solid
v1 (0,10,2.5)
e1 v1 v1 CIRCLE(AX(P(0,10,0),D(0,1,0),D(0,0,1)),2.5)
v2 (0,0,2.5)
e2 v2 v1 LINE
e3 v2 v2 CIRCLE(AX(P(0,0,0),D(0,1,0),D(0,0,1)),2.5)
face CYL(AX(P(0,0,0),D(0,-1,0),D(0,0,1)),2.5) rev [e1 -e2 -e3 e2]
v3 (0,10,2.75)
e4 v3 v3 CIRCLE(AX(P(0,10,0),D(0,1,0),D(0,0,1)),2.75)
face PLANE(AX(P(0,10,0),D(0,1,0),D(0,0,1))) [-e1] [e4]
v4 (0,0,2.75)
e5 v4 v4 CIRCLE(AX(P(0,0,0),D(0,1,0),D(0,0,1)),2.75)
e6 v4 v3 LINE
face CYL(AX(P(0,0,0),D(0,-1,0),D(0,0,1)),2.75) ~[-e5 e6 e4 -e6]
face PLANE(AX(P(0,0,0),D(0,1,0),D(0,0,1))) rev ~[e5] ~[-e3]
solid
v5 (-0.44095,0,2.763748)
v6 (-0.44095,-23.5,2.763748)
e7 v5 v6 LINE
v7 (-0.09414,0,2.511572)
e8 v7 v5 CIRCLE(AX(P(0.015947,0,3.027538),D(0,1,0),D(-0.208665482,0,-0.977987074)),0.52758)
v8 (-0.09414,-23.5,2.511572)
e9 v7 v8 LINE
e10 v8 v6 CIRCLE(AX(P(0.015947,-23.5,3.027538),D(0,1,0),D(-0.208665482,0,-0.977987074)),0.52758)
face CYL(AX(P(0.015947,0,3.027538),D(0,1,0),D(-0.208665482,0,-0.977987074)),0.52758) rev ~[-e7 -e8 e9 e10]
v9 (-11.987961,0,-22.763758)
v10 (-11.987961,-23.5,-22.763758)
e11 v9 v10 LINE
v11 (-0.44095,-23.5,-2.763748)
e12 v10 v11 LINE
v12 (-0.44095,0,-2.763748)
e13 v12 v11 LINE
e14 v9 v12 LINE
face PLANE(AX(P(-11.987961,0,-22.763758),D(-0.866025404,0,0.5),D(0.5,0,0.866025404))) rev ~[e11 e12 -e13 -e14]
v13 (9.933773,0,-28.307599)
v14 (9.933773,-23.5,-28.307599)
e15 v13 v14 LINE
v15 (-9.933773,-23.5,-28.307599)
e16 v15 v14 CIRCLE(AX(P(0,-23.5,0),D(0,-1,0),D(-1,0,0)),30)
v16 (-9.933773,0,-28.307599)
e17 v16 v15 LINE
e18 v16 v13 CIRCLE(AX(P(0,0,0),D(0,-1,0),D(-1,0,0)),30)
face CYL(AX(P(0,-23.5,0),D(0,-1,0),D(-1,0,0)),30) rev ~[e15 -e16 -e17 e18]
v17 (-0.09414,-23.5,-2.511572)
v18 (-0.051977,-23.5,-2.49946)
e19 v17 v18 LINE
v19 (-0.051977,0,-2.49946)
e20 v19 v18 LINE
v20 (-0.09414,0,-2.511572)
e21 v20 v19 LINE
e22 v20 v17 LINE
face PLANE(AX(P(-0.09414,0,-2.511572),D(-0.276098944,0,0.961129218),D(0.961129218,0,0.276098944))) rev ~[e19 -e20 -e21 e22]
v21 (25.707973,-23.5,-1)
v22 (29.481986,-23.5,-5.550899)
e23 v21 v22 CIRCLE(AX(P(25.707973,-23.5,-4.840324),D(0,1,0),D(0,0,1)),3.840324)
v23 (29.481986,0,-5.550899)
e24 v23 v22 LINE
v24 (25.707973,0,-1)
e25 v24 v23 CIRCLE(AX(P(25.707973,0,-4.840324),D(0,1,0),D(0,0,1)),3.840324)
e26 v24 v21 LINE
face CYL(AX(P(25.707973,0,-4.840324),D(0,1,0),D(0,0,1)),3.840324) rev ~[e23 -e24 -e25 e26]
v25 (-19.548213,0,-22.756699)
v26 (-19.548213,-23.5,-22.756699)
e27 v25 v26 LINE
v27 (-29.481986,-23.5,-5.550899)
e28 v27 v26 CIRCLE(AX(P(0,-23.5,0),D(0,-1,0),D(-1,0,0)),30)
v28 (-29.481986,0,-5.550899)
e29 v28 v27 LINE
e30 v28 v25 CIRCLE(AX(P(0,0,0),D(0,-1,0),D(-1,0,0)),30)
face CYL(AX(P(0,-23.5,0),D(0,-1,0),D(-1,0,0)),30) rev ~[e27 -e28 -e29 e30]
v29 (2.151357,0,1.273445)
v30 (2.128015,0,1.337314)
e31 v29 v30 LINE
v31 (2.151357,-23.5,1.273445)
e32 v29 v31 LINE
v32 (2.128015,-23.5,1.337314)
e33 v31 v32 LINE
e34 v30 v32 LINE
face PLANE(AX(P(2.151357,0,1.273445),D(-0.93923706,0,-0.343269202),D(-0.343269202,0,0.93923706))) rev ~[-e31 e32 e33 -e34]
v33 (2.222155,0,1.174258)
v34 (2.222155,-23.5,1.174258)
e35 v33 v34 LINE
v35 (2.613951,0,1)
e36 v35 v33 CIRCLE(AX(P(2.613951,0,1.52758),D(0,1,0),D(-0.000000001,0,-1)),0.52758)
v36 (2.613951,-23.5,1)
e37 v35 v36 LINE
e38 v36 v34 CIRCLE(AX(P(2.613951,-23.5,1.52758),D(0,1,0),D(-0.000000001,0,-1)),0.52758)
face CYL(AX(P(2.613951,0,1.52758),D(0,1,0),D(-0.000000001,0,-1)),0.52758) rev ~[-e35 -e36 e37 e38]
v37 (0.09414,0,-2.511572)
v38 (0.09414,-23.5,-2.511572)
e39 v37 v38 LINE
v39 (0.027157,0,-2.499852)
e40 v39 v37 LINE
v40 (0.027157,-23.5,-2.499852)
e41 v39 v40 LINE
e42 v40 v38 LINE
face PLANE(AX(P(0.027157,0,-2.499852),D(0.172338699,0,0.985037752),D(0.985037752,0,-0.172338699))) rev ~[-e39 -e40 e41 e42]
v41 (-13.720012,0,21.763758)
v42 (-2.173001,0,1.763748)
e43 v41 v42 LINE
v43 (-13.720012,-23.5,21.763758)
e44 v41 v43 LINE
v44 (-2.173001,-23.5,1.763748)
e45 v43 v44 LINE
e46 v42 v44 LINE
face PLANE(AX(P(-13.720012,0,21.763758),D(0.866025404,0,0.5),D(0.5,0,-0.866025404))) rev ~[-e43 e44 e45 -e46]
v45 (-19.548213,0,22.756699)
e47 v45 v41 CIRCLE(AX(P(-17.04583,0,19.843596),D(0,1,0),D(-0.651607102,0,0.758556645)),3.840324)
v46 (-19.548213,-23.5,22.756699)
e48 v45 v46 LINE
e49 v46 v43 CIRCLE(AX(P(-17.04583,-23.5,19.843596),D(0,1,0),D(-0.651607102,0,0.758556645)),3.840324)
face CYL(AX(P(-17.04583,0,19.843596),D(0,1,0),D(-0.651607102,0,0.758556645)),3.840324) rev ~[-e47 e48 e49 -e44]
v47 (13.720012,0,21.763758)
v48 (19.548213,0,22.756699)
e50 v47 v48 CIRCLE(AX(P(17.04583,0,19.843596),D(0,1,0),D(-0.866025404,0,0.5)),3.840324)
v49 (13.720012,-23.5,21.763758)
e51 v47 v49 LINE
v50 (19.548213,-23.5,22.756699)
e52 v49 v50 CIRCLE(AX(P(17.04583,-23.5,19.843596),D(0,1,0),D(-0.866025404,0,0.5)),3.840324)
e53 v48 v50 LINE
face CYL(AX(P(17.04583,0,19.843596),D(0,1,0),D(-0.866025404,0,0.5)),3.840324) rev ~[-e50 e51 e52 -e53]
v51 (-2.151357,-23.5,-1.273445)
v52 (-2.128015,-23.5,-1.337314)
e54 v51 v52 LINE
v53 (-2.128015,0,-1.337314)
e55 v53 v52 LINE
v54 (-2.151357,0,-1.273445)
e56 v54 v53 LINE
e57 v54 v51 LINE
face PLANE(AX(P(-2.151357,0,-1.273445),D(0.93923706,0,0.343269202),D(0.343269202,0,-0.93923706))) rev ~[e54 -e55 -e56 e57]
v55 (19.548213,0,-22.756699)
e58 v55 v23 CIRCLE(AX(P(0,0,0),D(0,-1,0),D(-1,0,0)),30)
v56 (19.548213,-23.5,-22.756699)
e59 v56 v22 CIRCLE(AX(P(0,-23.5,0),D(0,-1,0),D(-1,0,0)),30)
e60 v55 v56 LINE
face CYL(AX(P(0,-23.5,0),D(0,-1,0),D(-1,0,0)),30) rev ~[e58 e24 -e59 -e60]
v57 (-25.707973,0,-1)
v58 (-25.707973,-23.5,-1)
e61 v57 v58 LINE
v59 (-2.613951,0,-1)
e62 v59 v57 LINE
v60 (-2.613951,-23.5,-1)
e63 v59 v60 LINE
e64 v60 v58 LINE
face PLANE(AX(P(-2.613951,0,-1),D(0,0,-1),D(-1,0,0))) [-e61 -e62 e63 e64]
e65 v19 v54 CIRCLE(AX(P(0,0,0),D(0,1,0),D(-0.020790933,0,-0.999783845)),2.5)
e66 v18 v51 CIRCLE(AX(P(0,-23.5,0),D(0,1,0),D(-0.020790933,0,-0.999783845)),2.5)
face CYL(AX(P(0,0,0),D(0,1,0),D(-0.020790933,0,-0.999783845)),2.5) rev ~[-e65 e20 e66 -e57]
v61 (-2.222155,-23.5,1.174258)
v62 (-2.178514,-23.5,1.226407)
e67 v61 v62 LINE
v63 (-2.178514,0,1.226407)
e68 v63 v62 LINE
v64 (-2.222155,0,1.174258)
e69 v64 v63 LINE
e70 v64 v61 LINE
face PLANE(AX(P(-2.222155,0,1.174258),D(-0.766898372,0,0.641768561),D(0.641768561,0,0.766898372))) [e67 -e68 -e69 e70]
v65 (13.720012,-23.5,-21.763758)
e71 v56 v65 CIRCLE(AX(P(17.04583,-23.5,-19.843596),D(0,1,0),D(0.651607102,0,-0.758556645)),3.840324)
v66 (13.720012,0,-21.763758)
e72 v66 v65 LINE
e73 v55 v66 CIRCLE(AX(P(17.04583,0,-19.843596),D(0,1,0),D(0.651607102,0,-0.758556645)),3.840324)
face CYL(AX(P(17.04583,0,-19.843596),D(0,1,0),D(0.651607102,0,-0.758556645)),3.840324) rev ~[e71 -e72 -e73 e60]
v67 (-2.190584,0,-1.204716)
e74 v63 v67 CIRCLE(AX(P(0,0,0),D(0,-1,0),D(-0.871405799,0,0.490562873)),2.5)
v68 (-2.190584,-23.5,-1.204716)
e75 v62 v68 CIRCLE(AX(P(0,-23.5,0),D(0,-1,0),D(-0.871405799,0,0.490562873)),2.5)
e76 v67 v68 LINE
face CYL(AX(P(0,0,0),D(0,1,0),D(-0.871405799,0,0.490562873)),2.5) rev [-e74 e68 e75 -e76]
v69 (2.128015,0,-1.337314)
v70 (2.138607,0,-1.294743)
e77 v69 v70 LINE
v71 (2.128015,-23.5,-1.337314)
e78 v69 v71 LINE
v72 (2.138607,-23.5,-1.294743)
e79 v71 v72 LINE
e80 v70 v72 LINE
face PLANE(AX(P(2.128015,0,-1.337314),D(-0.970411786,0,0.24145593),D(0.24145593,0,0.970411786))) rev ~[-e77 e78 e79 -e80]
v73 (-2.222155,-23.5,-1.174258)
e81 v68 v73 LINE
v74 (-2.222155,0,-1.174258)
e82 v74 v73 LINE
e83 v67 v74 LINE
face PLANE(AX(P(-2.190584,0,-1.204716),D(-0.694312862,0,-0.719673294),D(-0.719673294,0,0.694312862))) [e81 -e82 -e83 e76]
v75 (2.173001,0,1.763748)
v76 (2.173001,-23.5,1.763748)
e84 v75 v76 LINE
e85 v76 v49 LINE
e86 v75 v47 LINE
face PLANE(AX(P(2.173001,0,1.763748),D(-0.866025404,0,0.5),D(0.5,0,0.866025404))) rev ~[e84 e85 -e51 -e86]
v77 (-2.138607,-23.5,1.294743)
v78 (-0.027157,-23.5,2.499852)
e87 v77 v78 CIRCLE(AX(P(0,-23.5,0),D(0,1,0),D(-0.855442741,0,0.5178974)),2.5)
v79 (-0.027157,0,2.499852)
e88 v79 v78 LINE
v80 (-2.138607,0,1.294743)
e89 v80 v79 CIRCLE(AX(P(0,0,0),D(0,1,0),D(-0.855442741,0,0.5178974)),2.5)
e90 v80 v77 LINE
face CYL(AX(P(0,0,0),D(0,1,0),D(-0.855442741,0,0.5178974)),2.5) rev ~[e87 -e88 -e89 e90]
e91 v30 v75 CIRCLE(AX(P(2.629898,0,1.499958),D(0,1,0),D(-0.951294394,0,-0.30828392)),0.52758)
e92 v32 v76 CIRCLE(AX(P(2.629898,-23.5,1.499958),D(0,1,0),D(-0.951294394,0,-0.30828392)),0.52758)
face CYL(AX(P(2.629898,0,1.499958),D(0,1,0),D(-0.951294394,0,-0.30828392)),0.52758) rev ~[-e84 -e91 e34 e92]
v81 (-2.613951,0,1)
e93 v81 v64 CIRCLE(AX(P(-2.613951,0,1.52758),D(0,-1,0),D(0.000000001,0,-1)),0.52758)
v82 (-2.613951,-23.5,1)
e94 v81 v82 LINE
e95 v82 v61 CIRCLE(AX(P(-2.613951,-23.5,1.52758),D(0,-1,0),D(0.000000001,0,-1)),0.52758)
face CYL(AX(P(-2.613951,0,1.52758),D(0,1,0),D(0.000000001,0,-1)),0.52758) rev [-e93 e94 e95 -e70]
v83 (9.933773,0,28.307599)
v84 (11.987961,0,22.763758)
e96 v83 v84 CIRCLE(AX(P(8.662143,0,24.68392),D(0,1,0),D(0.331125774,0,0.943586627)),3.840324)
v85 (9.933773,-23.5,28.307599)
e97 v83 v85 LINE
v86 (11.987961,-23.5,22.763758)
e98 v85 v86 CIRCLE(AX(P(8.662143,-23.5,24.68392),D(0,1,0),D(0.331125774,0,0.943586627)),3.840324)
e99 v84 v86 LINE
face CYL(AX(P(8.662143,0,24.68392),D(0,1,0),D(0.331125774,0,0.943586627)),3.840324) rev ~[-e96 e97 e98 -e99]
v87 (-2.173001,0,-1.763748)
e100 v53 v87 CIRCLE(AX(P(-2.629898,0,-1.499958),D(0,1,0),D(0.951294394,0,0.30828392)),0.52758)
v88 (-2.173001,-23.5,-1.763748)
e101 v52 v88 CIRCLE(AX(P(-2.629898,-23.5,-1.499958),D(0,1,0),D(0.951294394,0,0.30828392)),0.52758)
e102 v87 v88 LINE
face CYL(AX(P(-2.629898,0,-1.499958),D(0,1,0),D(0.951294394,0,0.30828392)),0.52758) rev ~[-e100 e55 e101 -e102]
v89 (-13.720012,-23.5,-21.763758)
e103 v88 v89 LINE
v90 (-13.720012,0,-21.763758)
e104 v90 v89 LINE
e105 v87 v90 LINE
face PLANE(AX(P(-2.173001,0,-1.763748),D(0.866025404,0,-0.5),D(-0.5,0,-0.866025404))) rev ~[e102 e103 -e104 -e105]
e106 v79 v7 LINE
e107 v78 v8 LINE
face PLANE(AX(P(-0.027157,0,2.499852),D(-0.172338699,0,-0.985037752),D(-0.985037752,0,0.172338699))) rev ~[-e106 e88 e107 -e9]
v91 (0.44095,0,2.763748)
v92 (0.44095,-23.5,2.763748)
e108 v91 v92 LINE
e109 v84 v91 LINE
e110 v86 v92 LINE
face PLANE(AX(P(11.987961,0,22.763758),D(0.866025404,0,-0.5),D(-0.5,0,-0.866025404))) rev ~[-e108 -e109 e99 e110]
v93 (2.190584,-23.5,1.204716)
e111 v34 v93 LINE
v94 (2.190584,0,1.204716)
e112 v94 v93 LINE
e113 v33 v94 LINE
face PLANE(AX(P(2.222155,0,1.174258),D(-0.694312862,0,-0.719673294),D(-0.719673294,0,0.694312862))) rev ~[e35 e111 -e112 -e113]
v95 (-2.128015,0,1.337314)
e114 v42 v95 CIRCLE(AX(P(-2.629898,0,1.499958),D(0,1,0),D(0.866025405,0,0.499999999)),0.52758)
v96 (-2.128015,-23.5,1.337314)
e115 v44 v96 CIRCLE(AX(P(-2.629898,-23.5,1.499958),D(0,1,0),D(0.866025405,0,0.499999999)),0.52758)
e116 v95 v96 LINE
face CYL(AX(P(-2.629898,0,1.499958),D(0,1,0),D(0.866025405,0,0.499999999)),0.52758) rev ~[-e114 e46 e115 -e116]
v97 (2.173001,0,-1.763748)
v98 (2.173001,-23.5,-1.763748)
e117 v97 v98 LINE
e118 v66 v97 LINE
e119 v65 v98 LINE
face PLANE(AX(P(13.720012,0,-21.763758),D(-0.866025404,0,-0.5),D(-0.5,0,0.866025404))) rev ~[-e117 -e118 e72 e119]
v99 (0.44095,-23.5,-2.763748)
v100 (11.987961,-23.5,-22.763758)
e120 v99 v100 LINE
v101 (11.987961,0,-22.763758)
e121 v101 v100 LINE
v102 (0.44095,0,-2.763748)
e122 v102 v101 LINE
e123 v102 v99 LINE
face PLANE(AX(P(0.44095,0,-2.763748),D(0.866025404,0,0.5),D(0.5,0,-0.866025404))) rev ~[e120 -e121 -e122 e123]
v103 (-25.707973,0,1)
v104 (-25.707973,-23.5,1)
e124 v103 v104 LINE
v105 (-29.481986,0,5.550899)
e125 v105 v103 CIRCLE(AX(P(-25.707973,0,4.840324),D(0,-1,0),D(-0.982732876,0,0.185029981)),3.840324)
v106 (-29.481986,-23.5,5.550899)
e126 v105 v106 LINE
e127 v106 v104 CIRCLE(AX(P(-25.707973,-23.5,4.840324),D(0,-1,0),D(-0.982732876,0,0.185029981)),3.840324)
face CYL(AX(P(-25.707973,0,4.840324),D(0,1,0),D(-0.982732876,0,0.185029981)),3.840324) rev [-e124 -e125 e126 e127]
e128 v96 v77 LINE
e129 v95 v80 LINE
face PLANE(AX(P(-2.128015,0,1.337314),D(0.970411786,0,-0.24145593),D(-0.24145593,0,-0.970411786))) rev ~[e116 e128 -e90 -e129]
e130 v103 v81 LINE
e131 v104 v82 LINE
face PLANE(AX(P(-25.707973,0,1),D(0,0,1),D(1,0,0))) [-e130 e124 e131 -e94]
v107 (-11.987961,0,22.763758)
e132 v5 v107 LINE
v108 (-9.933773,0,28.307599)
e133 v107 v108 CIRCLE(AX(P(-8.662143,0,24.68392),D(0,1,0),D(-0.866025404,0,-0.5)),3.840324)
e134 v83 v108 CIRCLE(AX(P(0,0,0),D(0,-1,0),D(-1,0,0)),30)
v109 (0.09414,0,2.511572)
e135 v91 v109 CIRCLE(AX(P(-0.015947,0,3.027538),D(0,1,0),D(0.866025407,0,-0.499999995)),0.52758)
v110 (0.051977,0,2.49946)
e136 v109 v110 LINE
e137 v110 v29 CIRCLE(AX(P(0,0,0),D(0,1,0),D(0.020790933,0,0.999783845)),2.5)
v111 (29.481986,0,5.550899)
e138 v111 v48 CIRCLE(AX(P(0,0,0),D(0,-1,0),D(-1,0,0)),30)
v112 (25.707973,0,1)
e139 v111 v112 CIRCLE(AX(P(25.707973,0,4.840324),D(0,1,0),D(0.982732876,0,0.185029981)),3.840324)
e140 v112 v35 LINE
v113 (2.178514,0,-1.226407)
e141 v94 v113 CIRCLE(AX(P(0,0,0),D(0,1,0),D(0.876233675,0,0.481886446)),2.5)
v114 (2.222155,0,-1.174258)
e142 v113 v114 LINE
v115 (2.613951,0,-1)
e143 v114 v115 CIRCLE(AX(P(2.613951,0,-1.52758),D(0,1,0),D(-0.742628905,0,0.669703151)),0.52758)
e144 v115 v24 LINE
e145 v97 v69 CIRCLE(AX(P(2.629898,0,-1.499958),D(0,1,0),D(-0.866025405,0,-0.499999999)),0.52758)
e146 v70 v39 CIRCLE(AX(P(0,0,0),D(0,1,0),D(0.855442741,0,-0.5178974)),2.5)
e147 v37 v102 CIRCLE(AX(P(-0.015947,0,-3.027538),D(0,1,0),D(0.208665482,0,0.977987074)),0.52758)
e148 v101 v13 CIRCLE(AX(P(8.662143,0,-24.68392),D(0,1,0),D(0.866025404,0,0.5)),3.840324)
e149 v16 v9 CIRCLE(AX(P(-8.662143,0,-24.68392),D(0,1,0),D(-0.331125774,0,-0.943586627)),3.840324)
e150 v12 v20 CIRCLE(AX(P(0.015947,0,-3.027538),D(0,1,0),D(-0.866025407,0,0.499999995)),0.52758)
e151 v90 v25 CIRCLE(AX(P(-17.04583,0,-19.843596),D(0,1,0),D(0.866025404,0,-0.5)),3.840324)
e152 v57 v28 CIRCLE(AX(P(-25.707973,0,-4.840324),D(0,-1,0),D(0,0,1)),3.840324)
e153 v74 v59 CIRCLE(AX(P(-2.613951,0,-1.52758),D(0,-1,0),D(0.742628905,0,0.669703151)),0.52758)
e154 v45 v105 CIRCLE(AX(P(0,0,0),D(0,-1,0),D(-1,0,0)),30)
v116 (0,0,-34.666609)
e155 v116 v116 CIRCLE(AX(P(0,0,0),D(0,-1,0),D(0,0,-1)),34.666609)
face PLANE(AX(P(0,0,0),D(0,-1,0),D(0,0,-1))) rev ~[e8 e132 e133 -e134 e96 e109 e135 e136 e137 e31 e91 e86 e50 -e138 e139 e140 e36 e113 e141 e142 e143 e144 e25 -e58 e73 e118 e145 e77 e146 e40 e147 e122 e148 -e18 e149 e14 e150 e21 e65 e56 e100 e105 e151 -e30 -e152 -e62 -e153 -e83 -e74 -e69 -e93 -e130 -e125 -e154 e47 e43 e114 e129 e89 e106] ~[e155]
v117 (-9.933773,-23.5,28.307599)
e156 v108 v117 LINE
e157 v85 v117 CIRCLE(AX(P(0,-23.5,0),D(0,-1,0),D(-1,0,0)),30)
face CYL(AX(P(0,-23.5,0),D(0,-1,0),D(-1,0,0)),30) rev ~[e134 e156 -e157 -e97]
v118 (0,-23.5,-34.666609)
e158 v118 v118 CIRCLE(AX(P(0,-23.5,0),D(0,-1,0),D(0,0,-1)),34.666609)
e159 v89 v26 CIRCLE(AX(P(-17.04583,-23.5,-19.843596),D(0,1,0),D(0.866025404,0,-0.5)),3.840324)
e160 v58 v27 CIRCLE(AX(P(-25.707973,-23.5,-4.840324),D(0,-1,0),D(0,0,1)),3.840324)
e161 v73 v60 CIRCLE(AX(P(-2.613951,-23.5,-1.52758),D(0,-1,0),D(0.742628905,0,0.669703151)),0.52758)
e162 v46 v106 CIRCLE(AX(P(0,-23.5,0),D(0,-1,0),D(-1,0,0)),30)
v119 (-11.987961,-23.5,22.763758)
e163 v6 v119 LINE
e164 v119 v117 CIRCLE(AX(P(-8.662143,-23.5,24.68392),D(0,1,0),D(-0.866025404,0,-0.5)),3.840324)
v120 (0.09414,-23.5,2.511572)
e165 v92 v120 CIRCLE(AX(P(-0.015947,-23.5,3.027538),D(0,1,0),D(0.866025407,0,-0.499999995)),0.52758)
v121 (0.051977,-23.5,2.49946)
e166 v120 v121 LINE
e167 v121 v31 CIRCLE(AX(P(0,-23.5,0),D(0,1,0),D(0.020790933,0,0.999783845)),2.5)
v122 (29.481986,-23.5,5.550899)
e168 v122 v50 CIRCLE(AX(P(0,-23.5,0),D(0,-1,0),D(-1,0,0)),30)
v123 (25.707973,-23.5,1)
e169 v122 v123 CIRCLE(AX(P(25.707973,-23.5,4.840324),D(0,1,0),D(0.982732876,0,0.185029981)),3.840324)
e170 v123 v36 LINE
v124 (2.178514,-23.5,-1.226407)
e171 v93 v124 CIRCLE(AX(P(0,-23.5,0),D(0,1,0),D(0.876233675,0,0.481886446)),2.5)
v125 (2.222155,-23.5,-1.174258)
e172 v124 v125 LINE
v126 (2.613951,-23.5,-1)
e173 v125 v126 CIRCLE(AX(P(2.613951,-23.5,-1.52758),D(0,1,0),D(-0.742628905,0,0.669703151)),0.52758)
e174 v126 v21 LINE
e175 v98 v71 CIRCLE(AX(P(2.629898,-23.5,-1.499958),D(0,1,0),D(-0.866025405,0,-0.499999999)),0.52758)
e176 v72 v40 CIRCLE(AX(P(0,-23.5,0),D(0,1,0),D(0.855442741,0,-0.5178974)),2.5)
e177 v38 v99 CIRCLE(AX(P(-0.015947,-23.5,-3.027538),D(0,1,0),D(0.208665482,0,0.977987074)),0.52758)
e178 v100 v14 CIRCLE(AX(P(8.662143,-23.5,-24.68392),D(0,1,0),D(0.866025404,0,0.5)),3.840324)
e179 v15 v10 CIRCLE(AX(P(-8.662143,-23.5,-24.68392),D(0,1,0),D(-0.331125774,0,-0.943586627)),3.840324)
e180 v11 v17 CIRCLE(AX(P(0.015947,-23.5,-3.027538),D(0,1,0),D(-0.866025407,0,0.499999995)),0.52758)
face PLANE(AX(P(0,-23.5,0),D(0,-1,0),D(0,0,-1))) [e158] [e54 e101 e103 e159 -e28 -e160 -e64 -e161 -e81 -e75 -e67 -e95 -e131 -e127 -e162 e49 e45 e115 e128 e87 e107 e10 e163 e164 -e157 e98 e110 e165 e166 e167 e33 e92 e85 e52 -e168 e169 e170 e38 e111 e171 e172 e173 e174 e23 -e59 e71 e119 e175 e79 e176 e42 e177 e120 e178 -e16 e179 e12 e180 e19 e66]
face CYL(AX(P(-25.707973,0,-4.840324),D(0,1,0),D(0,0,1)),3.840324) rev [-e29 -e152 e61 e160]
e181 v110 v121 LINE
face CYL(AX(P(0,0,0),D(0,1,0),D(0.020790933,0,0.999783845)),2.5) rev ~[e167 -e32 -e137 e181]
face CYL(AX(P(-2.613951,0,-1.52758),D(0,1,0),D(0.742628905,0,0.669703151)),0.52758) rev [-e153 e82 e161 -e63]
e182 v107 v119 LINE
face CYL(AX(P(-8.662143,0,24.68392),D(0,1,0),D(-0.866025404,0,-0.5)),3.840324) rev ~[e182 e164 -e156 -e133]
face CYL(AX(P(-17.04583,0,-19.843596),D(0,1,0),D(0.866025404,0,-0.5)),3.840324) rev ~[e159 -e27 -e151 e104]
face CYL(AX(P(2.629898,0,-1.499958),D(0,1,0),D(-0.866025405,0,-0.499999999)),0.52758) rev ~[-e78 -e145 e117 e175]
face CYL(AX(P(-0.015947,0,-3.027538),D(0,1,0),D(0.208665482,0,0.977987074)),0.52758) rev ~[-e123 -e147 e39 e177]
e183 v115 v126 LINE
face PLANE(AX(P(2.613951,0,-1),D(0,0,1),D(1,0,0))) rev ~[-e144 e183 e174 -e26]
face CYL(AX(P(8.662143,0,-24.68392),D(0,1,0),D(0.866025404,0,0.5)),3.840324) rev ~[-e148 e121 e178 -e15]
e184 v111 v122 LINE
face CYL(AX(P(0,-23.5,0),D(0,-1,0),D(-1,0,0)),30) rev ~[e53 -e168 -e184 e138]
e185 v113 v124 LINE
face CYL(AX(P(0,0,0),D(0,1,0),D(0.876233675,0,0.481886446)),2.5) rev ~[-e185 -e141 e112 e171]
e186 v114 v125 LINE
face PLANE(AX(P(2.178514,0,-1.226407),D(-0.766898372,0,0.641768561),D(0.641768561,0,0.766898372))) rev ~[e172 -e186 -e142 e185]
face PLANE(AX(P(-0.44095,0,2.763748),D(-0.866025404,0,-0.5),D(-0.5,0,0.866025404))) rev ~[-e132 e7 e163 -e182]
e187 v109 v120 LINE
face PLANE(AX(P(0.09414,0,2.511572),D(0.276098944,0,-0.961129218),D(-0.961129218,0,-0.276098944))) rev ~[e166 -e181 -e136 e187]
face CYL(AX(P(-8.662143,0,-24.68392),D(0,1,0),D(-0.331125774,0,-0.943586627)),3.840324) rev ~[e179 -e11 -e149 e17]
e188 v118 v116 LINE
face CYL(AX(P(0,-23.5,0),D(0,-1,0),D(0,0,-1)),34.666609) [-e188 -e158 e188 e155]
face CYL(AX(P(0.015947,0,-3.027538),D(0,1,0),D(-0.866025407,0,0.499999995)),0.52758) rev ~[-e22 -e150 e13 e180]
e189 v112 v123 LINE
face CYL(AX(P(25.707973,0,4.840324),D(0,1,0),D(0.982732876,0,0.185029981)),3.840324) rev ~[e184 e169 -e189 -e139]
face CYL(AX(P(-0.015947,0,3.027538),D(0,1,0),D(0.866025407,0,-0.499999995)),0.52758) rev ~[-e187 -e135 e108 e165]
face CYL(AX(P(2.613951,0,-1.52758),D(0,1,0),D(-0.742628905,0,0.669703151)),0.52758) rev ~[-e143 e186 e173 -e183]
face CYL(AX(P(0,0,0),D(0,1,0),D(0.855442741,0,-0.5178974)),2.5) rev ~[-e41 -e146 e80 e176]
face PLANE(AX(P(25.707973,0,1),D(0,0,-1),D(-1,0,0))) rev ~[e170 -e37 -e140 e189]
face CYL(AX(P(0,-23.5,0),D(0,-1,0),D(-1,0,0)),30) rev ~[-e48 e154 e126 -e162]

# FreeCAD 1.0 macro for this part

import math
import FreeCAD as App
import Part
import Sketcher
from FreeCAD import Vector
Q = App.Units.Quantity

doc = App.newDocument("Part")
body = doc.addObject("PartDesign::Body", "Body")

sketch1 = body.newObject("Sketcher::SketchObject", "Sketch")
sketch1.AttachmentSupport = (doc.getObject("XZ_Plane"), [""])
sketch1.MapMode = "FlatFace"
sketch1.addGeometry([
    Part.Circle(Vector(0, 0, 0), Vector(0, 0, 1), 2.8),
    Part.Circle(Vector(0, 0, 0), Vector(0, 0, 1), 2.5),
], False)
sketch1.addConstraint([
    Sketcher.Constraint("Coincident", 0, 3, -1, 1),
    Sketcher.Constraint("Coincident", 1, 3, -1, 1),
    Sketcher.Constraint("Diameter", 1, Q("5 mm")),
    Sketcher.Constraint("Diameter", 0, Q("5.5 mm")),
])
pad1 = body.newObject("PartDesign::Pad", "Pad")
pad1.Profile = sketch1
pad1.Length = 10
pad1.Reversed = True
body2 = doc.addObject("PartDesign::Body", "Body001")

sketch2 = body2.newObject("Sketcher::SketchObject", "Sketch001")
sketch2.AttachmentSupport = (doc.getObject("XZ_Plane001"), [""])
sketch2.MapMode = "FlatFace"
sketch2.addGeometry([
    Part.LineSegment(Vector(-25.708, -1, 0), Vector(-2.614, -1, 0)),
    Part.ArcOfCircle(Part.Circle(Vector(-2.614, -1.528, 0), Vector(0, 0, 1), 0.528), math.radians(42), math.radians(90)),
    Part.LineSegment(Vector(-2.222, -1.174, 0), Vector(-2.191, -1.205, 0)),
    Part.ArcOfCircle(Part.Circle(Vector(0, 0, 0), Vector(0, 0, 1), 2.5), math.radians(151), math.radians(209)),
    Part.LineSegment(Vector(-2.179, 1.226, 0), Vector(-2.222, 1.174, 0)),
    Part.ArcOfCircle(Part.Circle(Vector(-2.614, 1.528, 0), Vector(0, 0, 1), 0.528), math.radians(-90), math.radians(-42)),
    Part.LineSegment(Vector(-2.614, 1, 0), Vector(-25.708, 1, 0)),
    Part.ArcOfCircle(Part.Circle(Vector(-25.708, 4.84, 0), Vector(0, 0, 1), 3.84), math.radians(169), math.radians(270)),
    Part.ArcOfCircle(Part.Circle(Vector(0, 0, 0), Vector(0, 0, 1), 30), math.radians(169), math.radians(191)),
    Part.ArcOfCircle(Part.Circle(Vector(-25.708, -4.84, 0), Vector(0, 0, 1), 3.84), math.radians(90), math.radians(191)),
], False)
sketch2.addConstraint([
    Sketcher.Constraint("Tangent", 0, 2, 1, 2),
    Sketcher.Constraint("Coincident", 1, 1, 2, 1),
    Sketcher.Constraint("Coincident", 2, 2, 3, 2),
    Sketcher.Constraint("Coincident", 3, 1, 4, 1),
    Sketcher.Constraint("Coincident", 4, 2, 5, 2),
    Sketcher.Constraint("Tangent", 5, 1, 6, 1),
    Sketcher.Constraint("Tangent", 6, 2, 7, 2),
    Sketcher.Constraint("Tangent", 7, 1, 8, 1),
    Sketcher.Constraint("Tangent", 8, 2, 9, 2),
    Sketcher.Constraint("Tangent", 9, 1, 0, 1),
    Sketcher.Constraint("Horizontal", 0),
    Sketcher.Constraint("Horizontal", 6),
    Sketcher.Constraint("Coincident", 3, 3, -1, 1),
    Sketcher.Constraint("Coincident", 8, 3, -1, 1),
    Sketcher.Constraint("Equal", 1, 5),
    Sketcher.Constraint("Equal", 7, 9),
    Sketcher.Constraint("Symmetric", 1, 3, 5, 3, -1),
    Sketcher.Constraint("Vertical", 1, 1, 4, 2),
    Sketcher.Constraint("Radius", 8, Q("30 mm")),
    Sketcher.Constraint("Radius", 3, Q("2.5 mm")),
    Sketcher.Constraint("DistanceY", 0, 2, -1, 1, Q("1 mm")),
    Sketcher.Constraint("Radius", 1, Q("0.52758 mm")),
    Sketcher.Constraint("Distance", 4, Q("0.068 mm")),
    Sketcher.Constraint("Radius", 7, Q("3.840324 mm")),
    Sketcher.Constraint("Distance", 2, Q("0.043868 mm")),
    Sketcher.Constraint("DistanceX", 0, 1, 0, 2, Q("23.094023 mm")),
    Sketcher.Constraint("DistanceY", 1, 3, 1, 1, Q("0.353322 mm")),
])
pad2 = body2.newObject("PartDesign::Pad", "Pad001")
pad2.Profile = sketch2
pad2.Length = 23.5
body3 = doc.addObject("PartDesign::Body", "Body002")

sketch3 = body3.newObject("Sketcher::SketchObject", "Sketch002")
sketch3.AttachmentSupport = (doc.getObject("XZ_Plane002"), [""])
sketch3.MapMode = "FlatFace"
sketch3.addGeometry([
    Part.LineSegment(Vector(-0.441, 2.764, 0), Vector(-11.988, 22.764, 0)),
    Part.ArcOfCircle(Part.Circle(Vector(-8.662, 24.684, 0), Vector(0, 0, 1), 3.84), math.radians(109), math.radians(210)),
    Part.ArcOfCircle(Part.Circle(Vector(0, 0, 0), Vector(0, 0, 1), 30), math.radians(109), math.radians(131)),
    Part.ArcOfCircle(Part.Circle(Vector(-17.046, 19.844, 0), Vector(0, 0, 1), 3.84), math.radians(30), math.radians(131)),
    Part.LineSegment(Vector(-13.72, 21.764, 0), Vector(-2.173, 1.764, 0)),
    Part.ArcOfCircle(Part.Circle(Vector(-2.63, 1.5, 0), Vector(0, 0, 1), 0.528), math.radians(-18), math.radians(30)),
    Part.LineSegment(Vector(-2.128, 1.337, 0), Vector(-2.139, 1.295, 0)),
    Part.ArcOfCircle(Part.Circle(Vector(0, 0, 0), Vector(0, 0, 1), 2.5), math.radians(91), math.radians(149)),
    Part.LineSegment(Vector(-0.027, 2.5, 0), Vector(-0.094, 2.512, 0)),
    Part.ArcOfCircle(Part.Circle(Vector(0.016, 3.028, 0), Vector(0, 0, 1), 0.528), math.radians(-150), math.radians(-102)),
], False)
sketch3.addConstraint([
    Sketcher.Constraint("Tangent", 0, 2, 1, 2),
    Sketcher.Constraint("Tangent", 1, 1, 2, 1),
    Sketcher.Constraint("Tangent", 2, 2, 3, 2),
    Sketcher.Constraint("Tangent", 3, 1, 4, 1),
    Sketcher.Constraint("Tangent", 4, 2, 5, 2),
    Sketcher.Constraint("Coincident", 5, 1, 6, 1),
    Sketcher.Constraint("Coincident", 6, 2, 7, 2),
    Sketcher.Constraint("Coincident", 7, 1, 8, 1),
    Sketcher.Constraint("Coincident", 8, 2, 9, 2),
    Sketcher.Constraint("Tangent", 9, 1, 0, 1),
    Sketcher.Constraint("Coincident", 2, 3, -1, 1),
    Sketcher.Constraint("Coincident", 7, 3, -1, 1),
    Sketcher.Constraint("Equal", 1, 3),
    Sketcher.Constraint("Equal", 5, 9),
    Sketcher.Constraint("Parallel", 0, 4),
    Sketcher.Constraint("Equal", 0, 4),
    Sketcher.Constraint("Radius", 2, Q("30 mm")),
    Sketcher.Constraint("Radius", 7, Q("2.5 mm")),
    Sketcher.Constraint("Angle", 0, Q("120 deg")),
    Sketcher.Constraint("DistanceY", 3, 1, 0, 2, Q("1 mm")),
    Sketcher.Constraint("Radius", 5, Q("0.52758 mm")),
    Sketcher.Constraint("Distance", 8, Q("0.068 mm")),
    Sketcher.Constraint("DistanceX", 4, 2, -1, 1, Q("2.173001 mm")),
    Sketcher.Constraint("Radius", 1, Q("3.840324 mm")),
    Sketcher.Constraint("DistanceY", -1, 1, 1, 1, Q("28.307599 mm")),
    Sketcher.Constraint("Distance", 6, Q("0.043868 mm")),
    Sketcher.Constraint("DistanceX", 8, 2, -1, 1, Q("0.09414 mm")),
    Sketcher.Constraint("DistanceX", 5, 1, 9, 3, Q("2.143962 mm")),
])
pad3 = body3.newObject("PartDesign::Pad", "Pad002")
pad3.Profile = sketch3
pad3.Length = 23.5
body4 = doc.addObject("PartDesign::Body", "Body003")

sketch4 = body4.newObject("Sketcher::SketchObject", "Sketch003")
sketch4.AttachmentSupport = (doc.getObject("XZ_Plane003"), [""])
sketch4.MapMode = "FlatFace"
sketch4.addGeometry([
    Part.LineSegment(Vector(2.173, 1.764, 0), Vector(13.72, 21.764, 0)),
    Part.ArcOfCircle(Part.Circle(Vector(17.046, 19.844, 0), Vector(0, 0, 1), 3.84), math.radians(49), math.radians(150)),
    Part.ArcOfCircle(Part.Circle(Vector(0, 0, 0), Vector(0, 0, 1), 30), math.radians(49), math.radians(71)),
    Part.ArcOfCircle(Part.Circle(Vector(8.662, 24.684, 0), Vector(0, 0, 1), 3.84), math.radians(-30), math.radians(71)),
    Part.LineSegment(Vector(11.988, 22.764, 0), Vector(0.441, 2.764, 0)),
    Part.ArcOfCircle(Part.Circle(Vector(-0.016, 3.028, 0), Vector(0, 0, 1), 0.528), math.radians(-78), math.radians(-30)),
    Part.LineSegment(Vector(0.094, 2.512, 0), Vector(0.052, 2.499, 0)),
    Part.ArcOfCircle(Part.Circle(Vector(0, 0, 0), Vector(0, 0, 1), 2.5), math.radians(31), math.radians(89)),
    Part.LineSegment(Vector(2.151, 1.273, 0), Vector(2.128, 1.337, 0)),
    Part.ArcOfCircle(Part.Circle(Vector(2.63, 1.5, 0), Vector(0, 0, 1), 0.528), math.radians(150), math.radians(198)),
], False)
sketch4.addConstraint([
    Sketcher.Constraint("Tangent", 0, 2, 1, 2),
    Sketcher.Constraint("Tangent", 1, 1, 2, 1),
    Sketcher.Constraint("Tangent", 2, 2, 3, 2),
    Sketcher.Constraint("Tangent", 3, 1, 4, 1),
    Sketcher.Constraint("Tangent", 4, 2, 5, 2),
    Sketcher.Constraint("Coincident", 5, 1, 6, 1),
    Sketcher.Constraint("Coincident", 6, 2, 7, 2),
    Sketcher.Constraint("Coincident", 7, 1, 8, 1),
    Sketcher.Constraint("Coincident", 8, 2, 9, 2),
    Sketcher.Constraint("Tangent", 9, 1, 0, 1),
    Sketcher.Constraint("Coincident", 2, 3, -1, 1),
    Sketcher.Constraint("Coincident", 7, 3, -1, 1),
    Sketcher.Constraint("Equal", 1, 3),
    Sketcher.Constraint("Equal", 5, 9),
    Sketcher.Constraint("Parallel", 0, 4),
    Sketcher.Constraint("Equal", 0, 4),
    Sketcher.Constraint("Radius", 2, Q("30 mm")),
    Sketcher.Constraint("Radius", 7, Q("2.5 mm")),
    Sketcher.Constraint("Angle", 0, Q("60 deg")),
    Sketcher.Constraint("DistanceY", 0, 2, 3, 1, Q("1 mm")),
    Sketcher.Constraint("Radius", 5, Q("0.52758 mm")),
    Sketcher.Constraint("Distance", 8, Q("0.068 mm")),
    Sketcher.Constraint("DistanceX", -1, 1, 9, 1, Q("2.173001 mm")),
    Sketcher.Constraint("Radius", 1, Q("3.840324 mm")),
    Sketcher.Constraint("DistanceY", -1, 1, 1, 1, Q("22.756699 mm")),
    Sketcher.Constraint("Distance", 6, Q("0.043868 mm")),
    Sketcher.Constraint("DistanceX", -1, 1, 5, 1, Q("0.09414 mm")),
    Sketcher.Constraint("DistanceX", 7, 1, 9, 3, Q("0.478541 mm")),
])
pad4 = body4.newObject("PartDesign::Pad", "Pad003")
pad4.Profile = sketch4
pad4.Length = 23.5
body5 = doc.addObject("PartDesign::Body", "Body004")

sketch5 = body5.newObject("Sketcher::SketchObject", "Sketch004")
sketch5.AttachmentSupport = (doc.getObject("XZ_Plane004"), [""])
sketch5.MapMode = "FlatFace"
sketch5.addGeometry([
    Part.LineSegment(Vector(2.614, -1, 0), Vector(25.708, -1, 0)),
    Part.ArcOfCircle(Part.Circle(Vector(25.708, -4.84, 0), Vector(0, 0, 1), 3.84), math.radians(-11), math.radians(90)),
    Part.ArcOfCircle(Part.Circle(Vector(0, 0, 0), Vector(0, 0, 1), 30), math.radians(-11), math.radians(11)),
    Part.ArcOfCircle(Part.Circle(Vector(25.708, 4.84, 0), Vector(0, 0, 1), 3.84), math.radians(-90), math.radians(11)),
    Part.LineSegment(Vector(25.708, 1, 0), Vector(2.614, 1, 0)),
    Part.ArcOfCircle(Part.Circle(Vector(2.614, 1.528, 0), Vector(0, 0, 1), 0.528), math.radians(-138), math.radians(-90)),
    Part.LineSegment(Vector(2.222, 1.174, 0), Vector(2.191, 1.205, 0)),
    Part.ArcOfCircle(Part.Circle(Vector(0, 0, 0), Vector(0, 0, 1), 2.5), math.radians(-29), math.radians(29)),
    Part.LineSegment(Vector(2.179, -1.226, 0), Vector(2.222, -1.174, 0)),
    Part.ArcOfCircle(Part.Circle(Vector(2.614, -1.528, 0), Vector(0, 0, 1), 0.528), math.radians(90), math.radians(138)),
], False)
sketch5.addConstraint([
    Sketcher.Constraint("Tangent", 0, 2, 1, 2),
    Sketcher.Constraint("Tangent", 1, 1, 2, 1),
    Sketcher.Constraint("Tangent", 2, 2, 3, 2),
    Sketcher.Constraint("Tangent", 3, 1, 4, 1),
    Sketcher.Constraint("Tangent", 4, 2, 5, 2),
    Sketcher.Constraint("Coincident", 5, 1, 6, 1),
    Sketcher.Constraint("Coincident", 6, 2, 7, 2),
    Sketcher.Constraint("Coincident", 7, 1, 8, 1),
    Sketcher.Constraint("Coincident", 8, 2, 9, 2),
    Sketcher.Constraint("Tangent", 9, 1, 0, 1),
    Sketcher.Constraint("Horizontal", 0),
    Sketcher.Constraint("Horizontal", 4),
    Sketcher.Constraint("Coincident", 2, 3, -1, 1),
    Sketcher.Constraint("Coincident", 7, 3, -1, 1),
    Sketcher.Constraint("Equal", 1, 3),
    Sketcher.Constraint("Equal", 5, 9),
    Sketcher.Constraint("Symmetric", 5, 3, 9, 3, -1),
    Sketcher.Constraint("Vertical", 5, 1, 8, 2),
    Sketcher.Constraint("Radius", 2, Q("30 mm")),
    Sketcher.Constraint("Radius", 7, Q("2.5 mm")),
    Sketcher.Constraint("DistanceY", 0, 2, -1, 1, Q("1 mm")),
    Sketcher.Constraint("Radius", 5, Q("0.52758 mm")),
    Sketcher.Constraint("Distance", 8, Q("0.068 mm")),
    Sketcher.Constraint("Radius", 1, Q("3.840324 mm")),
    Sketcher.Constraint("Distance", 6, Q("0.043868 mm")),
    Sketcher.Constraint("DistanceX", 0, 1, 0, 2, Q("23.094023 mm")),
    Sketcher.Constraint("DistanceY", 5, 1, 5, 3, Q("0.353322 mm")),
])
pad5 = body5.newObject("PartDesign::Pad", "Pad004")
pad5.Profile = sketch5
pad5.Length = 23.5
body6 = doc.addObject("PartDesign::Body", "Body005")

sketch6 = body6.newObject("Sketcher::SketchObject", "Sketch005")
sketch6.AttachmentSupport = (doc.getObject("XZ_Plane005"), [""])
sketch6.MapMode = "FlatFace"
sketch6.addGeometry([
    Part.LineSegment(Vector(0.441, -2.764, 0), Vector(11.988, -22.764, 0)),
    Part.ArcOfCircle(Part.Circle(Vector(8.662, -24.684, 0), Vector(0, 0, 1), 3.84), math.radians(-71), math.radians(30)),
    Part.ArcOfCircle(Part.Circle(Vector(0, 0, 0), Vector(0, 0, 1), 30), math.radians(-71), math.radians(-49)),
    Part.ArcOfCircle(Part.Circle(Vector(17.046, -19.844, 0), Vector(0, 0, 1), 3.84), math.radians(-150), math.radians(-49)),
    Part.LineSegment(Vector(13.72, -21.764, 0), Vector(2.173, -1.764, 0)),
    Part.ArcOfCircle(Part.Circle(Vector(2.63, -1.5, 0), Vector(0, 0, 1), 0.528), math.radians(162), math.radians(210)),
    Part.LineSegment(Vector(2.128, -1.337, 0), Vector(2.139, -1.295, 0)),
    Part.ArcOfCircle(Part.Circle(Vector(0, 0, 0), Vector(0, 0, 1), 2.5), math.radians(-89), math.radians(-31)),
    Part.LineSegment(Vector(0.027, -2.5, 0), Vector(0.094, -2.512, 0)),
    Part.ArcOfCircle(Part.Circle(Vector(-0.016, -3.028, 0), Vector(0, 0, 1), 0.528), math.radians(30), math.radians(78)),
], False)
sketch6.addConstraint([
    Sketcher.Constraint("Tangent", 0, 2, 1, 2),
    Sketcher.Constraint("Tangent", 1, 1, 2, 1),
    Sketcher.Constraint("Tangent", 2, 2, 3, 2),
    Sketcher.Constraint("Tangent", 3, 1, 4, 1),
    Sketcher.Constraint("Tangent", 4, 2, 5, 2),
    Sketcher.Constraint("Coincident", 5, 1, 6, 1),
    Sketcher.Constraint("Coincident", 6, 2, 7, 2),
    Sketcher.Constraint("Coincident", 7, 1, 8, 1),
    Sketcher.Constraint("Coincident", 8, 2, 9, 2),
    Sketcher.Constraint("Tangent", 9, 1, 0, 1),
    Sketcher.Constraint("Coincident", 2, 3, -1, 1),
    Sketcher.Constraint("Coincident", 7, 3, -1, 1),
    Sketcher.Constraint("Equal", 1, 3),
    Sketcher.Constraint("Equal", 5, 9),
    Sketcher.Constraint("Parallel", 0, 4),
    Sketcher.Constraint("Equal", 0, 4),
    Sketcher.Constraint("Radius", 2, Q("30 mm")),
    Sketcher.Constraint("Radius", 7, Q("2.5 mm")),
    Sketcher.Constraint("Angle", 0, Q("-60 deg")),
    Sketcher.Constraint("DistanceY", 0, 2, 3, 1, Q("1 mm")),
    Sketcher.Constraint("Radius", 5, Q("0.52758 mm")),
    Sketcher.Constraint("Distance", 8, Q("0.068 mm")),
    Sketcher.Constraint("DistanceX", -1, 1, 4, 2, Q("2.173001 mm")),
    Sketcher.Constraint("Radius", 1, Q("3.840324 mm")),
    Sketcher.Constraint("DistanceY", 1, 1, -1, 1, Q("28.307599 mm")),
    Sketcher.Constraint("Distance", 6, Q("0.043868 mm")),
    Sketcher.Constraint("DistanceX", -1, 1, 8, 2, Q("0.09414 mm")),
    Sketcher.Constraint("DistanceX", 9, 3, 5, 1, Q("2.143962 mm")),
])
pad6 = body6.newObject("PartDesign::Pad", "Pad005")
pad6.Profile = sketch6
pad6.Length = 23.5
body7 = doc.addObject("PartDesign::Body", "Body006")

sketch7 = body7.newObject("Sketcher::SketchObject", "Sketch006")
sketch7.AttachmentSupport = (doc.getObject("XZ_Plane006"), [""])
sketch7.MapMode = "FlatFace"
sketch7.addGeometry([
    Part.LineSegment(Vector(-2.173, -1.764, 0), Vector(-13.72, -21.764, 0)),
    Part.ArcOfCircle(Part.Circle(Vector(-17.046, -19.844, 0), Vector(0, 0, 1), 3.84), math.radians(-131), math.radians(-30)),
    Part.ArcOfCircle(Part.Circle(Vector(0, 0, 0), Vector(0, 0, 1), 30), math.radians(-131), math.radians(-109)),
    Part.ArcOfCircle(Part.Circle(Vector(-8.662, -24.684, 0), Vector(0, 0, 1), 3.84), math.radians(150), math.radians(251)),
    Part.LineSegment(Vector(-11.988, -22.764, 0), Vector(-0.441, -2.764, 0)),
    Part.ArcOfCircle(Part.Circle(Vector(0.016, -3.028, 0), Vector(0, 0, 1), 0.528), math.radians(102), math.radians(150)),
    Part.LineSegment(Vector(-0.094, -2.512, 0), Vector(-0.052, -2.499, 0)),
    Part.ArcOfCircle(Part.Circle(Vector(0, 0, 0), Vector(0, 0, 1), 2.5), math.radians(-149), math.radians(-91)),
    Part.LineSegment(Vector(-2.151, -1.273, 0), Vector(-2.128, -1.337, 0)),
    Part.ArcOfCircle(Part.Circle(Vector(-2.63, -1.5, 0), Vector(0, 0, 1), 0.528), math.radians(-30), math.radians(18)),
], False)
sketch7.addConstraint([
    Sketcher.Constraint("Tangent", 0, 2, 1, 2),
    Sketcher.Constraint("Tangent", 1, 1, 2, 1),
    Sketcher.Constraint("Tangent", 2, 2, 3, 2),
    Sketcher.Constraint("Tangent", 3, 1, 4, 1),
    Sketcher.Constraint("Tangent", 4, 2, 5, 2),
    Sketcher.Constraint("Coincident", 5, 1, 6, 1),
    Sketcher.Constraint("Coincident", 6, 2, 7, 2),
    Sketcher.Constraint("Coincident", 7, 1, 8, 1),
    Sketcher.Constraint("Coincident", 8, 2, 9, 2),
    Sketcher.Constraint("Tangent", 9, 1, 0, 1),
    Sketcher.Constraint("Coincident", 2, 3, -1, 1),
    Sketcher.Constraint("Coincident", 7, 3, -1, 1),
    Sketcher.Constraint("Equal", 1, 3),
    Sketcher.Constraint("Equal", 5, 9),
    Sketcher.Constraint("Parallel", 0, 4),
    Sketcher.Constraint("Equal", 0, 4),
    Sketcher.Constraint("Radius", 2, Q("30 mm")),
    Sketcher.Constraint("Radius", 7, Q("2.5 mm")),
    Sketcher.Constraint("Angle", 0, Q("-120 deg")),
    Sketcher.Constraint("DistanceY", 3, 1, 0, 2, Q("1 mm")),
    Sketcher.Constraint("Radius", 5, Q("0.52758 mm")),
    Sketcher.Constraint("Distance", 8, Q("0.068 mm")),
    Sketcher.Constraint("DistanceX", 9, 1, -1, 1, Q("2.173001 mm")),
    Sketcher.Constraint("Radius", 1, Q("3.840324 mm")),
    Sketcher.Constraint("DistanceY", 1, 1, -1, 1, Q("22.756699 mm")),
    Sketcher.Constraint("Distance", 6, Q("0.043868 mm")),
    Sketcher.Constraint("DistanceX", 5, 1, -1, 1, Q("0.09414 mm")),
    Sketcher.Constraint("DistanceX", 9, 3, 7, 1, Q("0.478541 mm")),
])
pad7 = body7.newObject("PartDesign::Pad", "Pad006")
pad7.Profile = sketch7
pad7.Length = 23.5
body2.AllowCompound = True
doc.recompute()

boolean = body2.newObject("PartDesign::Boolean", "Boolean")
boolean.Type = "Fuse"
boolean.addObjects([body3])
doc.recompute()

boolean2 = body2.newObject("PartDesign::Boolean", "Boolean001")
boolean2.Type = "Fuse"
boolean2.addObjects([body4])
doc.recompute()

boolean3 = body2.newObject("PartDesign::Boolean", "Boolean002")
boolean3.Type = "Fuse"
boolean3.addObjects([body5])
doc.recompute()

boolean4 = body2.newObject("PartDesign::Boolean", "Boolean003")
boolean4.Type = "Fuse"
boolean4.addObjects([body6])
doc.recompute()

boolean5 = body2.newObject("PartDesign::Boolean", "Boolean004")
boolean5.Type = "Fuse"
boolean5.addObjects([body7])

sketch8 = body2.newObject("Sketcher::SketchObject", "Sketch007")
sketch8.AttachmentSupport = (doc.getObject("XZ_Plane001"), [""])
sketch8.MapMode = "FlatFace"
sketch8.AttachmentOffset = App.Placement(Vector(0, 0, 23.5), App.Rotation())
sketch8.addGeometry([
    Part.Circle(Vector(0, 0, 0), Vector(0, 0, 1), 35),
    Part.Circle(Vector(0, 0, 0), Vector(0, 0, 1), 30),
], False)
sketch8.addConstraint([
    Sketcher.Constraint("Coincident", 0, 3, -1, 1),
    Sketcher.Constraint("Coincident", 1, 3, -1, 1),
    Sketcher.Constraint("Diameter", 1, Q("60 mm")),
    Sketcher.Constraint("Diameter", 0, Q("69.333217 mm")),
])
pad8 = body2.newObject("PartDesign::Pad", "Pad007")
pad8.Profile = sketch8
pad8.Length = 23.5
pad8.Reversed = True
body8 = doc.addObject("PartDesign::Body", "Body007")

sketch9 = body8.newObject("Sketcher::SketchObject", "Sketch008")
sketch9.AttachmentSupport = (doc.getObject("XZ_Plane007"), [""])
sketch9.MapMode = "FlatFace"
sketch9.AttachmentOffset = App.Placement(Vector(0, 0, -10), App.Rotation())
sketch9.addGeometry(Part.Circle(Vector(0, 0, 0), Vector(0, 0, 1), 1.5), False)
sketch9.addConstraint([
    Sketcher.Constraint("Coincident", 0, 3, -1, 1),
    Sketcher.Constraint("Diameter", 0, Q("3 mm")),
])
pad9 = body8.newObject("PartDesign::Pad", "Pad008")
pad9.Profile = sketch9
pad9.Length = 28

sketch10 = body8.newObject("Sketcher::SketchObject", "Sketch009")
sketch10.AttachmentSupport = (doc.getObject("XZ_Plane007"), [""])
sketch10.MapMode = "FlatFace"
sketch10.AttachmentOffset = App.Placement(Vector(0, 0, -10), App.Rotation())
sketch10.addGeometry(Part.Circle(Vector(0, 0, 0), Vector(0, 0, 1), 2.2), False)
sketch10.addConstraint([
    Sketcher.Constraint("Coincident", 0, 3, -1, 1),
    Sketcher.Constraint("Diameter", 0, Q("4.5 mm")),
])
pocket1 = body8.newObject("PartDesign::Pocket", "Pocket")
pocket1.Profile = sketch10
pocket1.Length = 28
pocket1.Reversed = True

doc.recompute()
